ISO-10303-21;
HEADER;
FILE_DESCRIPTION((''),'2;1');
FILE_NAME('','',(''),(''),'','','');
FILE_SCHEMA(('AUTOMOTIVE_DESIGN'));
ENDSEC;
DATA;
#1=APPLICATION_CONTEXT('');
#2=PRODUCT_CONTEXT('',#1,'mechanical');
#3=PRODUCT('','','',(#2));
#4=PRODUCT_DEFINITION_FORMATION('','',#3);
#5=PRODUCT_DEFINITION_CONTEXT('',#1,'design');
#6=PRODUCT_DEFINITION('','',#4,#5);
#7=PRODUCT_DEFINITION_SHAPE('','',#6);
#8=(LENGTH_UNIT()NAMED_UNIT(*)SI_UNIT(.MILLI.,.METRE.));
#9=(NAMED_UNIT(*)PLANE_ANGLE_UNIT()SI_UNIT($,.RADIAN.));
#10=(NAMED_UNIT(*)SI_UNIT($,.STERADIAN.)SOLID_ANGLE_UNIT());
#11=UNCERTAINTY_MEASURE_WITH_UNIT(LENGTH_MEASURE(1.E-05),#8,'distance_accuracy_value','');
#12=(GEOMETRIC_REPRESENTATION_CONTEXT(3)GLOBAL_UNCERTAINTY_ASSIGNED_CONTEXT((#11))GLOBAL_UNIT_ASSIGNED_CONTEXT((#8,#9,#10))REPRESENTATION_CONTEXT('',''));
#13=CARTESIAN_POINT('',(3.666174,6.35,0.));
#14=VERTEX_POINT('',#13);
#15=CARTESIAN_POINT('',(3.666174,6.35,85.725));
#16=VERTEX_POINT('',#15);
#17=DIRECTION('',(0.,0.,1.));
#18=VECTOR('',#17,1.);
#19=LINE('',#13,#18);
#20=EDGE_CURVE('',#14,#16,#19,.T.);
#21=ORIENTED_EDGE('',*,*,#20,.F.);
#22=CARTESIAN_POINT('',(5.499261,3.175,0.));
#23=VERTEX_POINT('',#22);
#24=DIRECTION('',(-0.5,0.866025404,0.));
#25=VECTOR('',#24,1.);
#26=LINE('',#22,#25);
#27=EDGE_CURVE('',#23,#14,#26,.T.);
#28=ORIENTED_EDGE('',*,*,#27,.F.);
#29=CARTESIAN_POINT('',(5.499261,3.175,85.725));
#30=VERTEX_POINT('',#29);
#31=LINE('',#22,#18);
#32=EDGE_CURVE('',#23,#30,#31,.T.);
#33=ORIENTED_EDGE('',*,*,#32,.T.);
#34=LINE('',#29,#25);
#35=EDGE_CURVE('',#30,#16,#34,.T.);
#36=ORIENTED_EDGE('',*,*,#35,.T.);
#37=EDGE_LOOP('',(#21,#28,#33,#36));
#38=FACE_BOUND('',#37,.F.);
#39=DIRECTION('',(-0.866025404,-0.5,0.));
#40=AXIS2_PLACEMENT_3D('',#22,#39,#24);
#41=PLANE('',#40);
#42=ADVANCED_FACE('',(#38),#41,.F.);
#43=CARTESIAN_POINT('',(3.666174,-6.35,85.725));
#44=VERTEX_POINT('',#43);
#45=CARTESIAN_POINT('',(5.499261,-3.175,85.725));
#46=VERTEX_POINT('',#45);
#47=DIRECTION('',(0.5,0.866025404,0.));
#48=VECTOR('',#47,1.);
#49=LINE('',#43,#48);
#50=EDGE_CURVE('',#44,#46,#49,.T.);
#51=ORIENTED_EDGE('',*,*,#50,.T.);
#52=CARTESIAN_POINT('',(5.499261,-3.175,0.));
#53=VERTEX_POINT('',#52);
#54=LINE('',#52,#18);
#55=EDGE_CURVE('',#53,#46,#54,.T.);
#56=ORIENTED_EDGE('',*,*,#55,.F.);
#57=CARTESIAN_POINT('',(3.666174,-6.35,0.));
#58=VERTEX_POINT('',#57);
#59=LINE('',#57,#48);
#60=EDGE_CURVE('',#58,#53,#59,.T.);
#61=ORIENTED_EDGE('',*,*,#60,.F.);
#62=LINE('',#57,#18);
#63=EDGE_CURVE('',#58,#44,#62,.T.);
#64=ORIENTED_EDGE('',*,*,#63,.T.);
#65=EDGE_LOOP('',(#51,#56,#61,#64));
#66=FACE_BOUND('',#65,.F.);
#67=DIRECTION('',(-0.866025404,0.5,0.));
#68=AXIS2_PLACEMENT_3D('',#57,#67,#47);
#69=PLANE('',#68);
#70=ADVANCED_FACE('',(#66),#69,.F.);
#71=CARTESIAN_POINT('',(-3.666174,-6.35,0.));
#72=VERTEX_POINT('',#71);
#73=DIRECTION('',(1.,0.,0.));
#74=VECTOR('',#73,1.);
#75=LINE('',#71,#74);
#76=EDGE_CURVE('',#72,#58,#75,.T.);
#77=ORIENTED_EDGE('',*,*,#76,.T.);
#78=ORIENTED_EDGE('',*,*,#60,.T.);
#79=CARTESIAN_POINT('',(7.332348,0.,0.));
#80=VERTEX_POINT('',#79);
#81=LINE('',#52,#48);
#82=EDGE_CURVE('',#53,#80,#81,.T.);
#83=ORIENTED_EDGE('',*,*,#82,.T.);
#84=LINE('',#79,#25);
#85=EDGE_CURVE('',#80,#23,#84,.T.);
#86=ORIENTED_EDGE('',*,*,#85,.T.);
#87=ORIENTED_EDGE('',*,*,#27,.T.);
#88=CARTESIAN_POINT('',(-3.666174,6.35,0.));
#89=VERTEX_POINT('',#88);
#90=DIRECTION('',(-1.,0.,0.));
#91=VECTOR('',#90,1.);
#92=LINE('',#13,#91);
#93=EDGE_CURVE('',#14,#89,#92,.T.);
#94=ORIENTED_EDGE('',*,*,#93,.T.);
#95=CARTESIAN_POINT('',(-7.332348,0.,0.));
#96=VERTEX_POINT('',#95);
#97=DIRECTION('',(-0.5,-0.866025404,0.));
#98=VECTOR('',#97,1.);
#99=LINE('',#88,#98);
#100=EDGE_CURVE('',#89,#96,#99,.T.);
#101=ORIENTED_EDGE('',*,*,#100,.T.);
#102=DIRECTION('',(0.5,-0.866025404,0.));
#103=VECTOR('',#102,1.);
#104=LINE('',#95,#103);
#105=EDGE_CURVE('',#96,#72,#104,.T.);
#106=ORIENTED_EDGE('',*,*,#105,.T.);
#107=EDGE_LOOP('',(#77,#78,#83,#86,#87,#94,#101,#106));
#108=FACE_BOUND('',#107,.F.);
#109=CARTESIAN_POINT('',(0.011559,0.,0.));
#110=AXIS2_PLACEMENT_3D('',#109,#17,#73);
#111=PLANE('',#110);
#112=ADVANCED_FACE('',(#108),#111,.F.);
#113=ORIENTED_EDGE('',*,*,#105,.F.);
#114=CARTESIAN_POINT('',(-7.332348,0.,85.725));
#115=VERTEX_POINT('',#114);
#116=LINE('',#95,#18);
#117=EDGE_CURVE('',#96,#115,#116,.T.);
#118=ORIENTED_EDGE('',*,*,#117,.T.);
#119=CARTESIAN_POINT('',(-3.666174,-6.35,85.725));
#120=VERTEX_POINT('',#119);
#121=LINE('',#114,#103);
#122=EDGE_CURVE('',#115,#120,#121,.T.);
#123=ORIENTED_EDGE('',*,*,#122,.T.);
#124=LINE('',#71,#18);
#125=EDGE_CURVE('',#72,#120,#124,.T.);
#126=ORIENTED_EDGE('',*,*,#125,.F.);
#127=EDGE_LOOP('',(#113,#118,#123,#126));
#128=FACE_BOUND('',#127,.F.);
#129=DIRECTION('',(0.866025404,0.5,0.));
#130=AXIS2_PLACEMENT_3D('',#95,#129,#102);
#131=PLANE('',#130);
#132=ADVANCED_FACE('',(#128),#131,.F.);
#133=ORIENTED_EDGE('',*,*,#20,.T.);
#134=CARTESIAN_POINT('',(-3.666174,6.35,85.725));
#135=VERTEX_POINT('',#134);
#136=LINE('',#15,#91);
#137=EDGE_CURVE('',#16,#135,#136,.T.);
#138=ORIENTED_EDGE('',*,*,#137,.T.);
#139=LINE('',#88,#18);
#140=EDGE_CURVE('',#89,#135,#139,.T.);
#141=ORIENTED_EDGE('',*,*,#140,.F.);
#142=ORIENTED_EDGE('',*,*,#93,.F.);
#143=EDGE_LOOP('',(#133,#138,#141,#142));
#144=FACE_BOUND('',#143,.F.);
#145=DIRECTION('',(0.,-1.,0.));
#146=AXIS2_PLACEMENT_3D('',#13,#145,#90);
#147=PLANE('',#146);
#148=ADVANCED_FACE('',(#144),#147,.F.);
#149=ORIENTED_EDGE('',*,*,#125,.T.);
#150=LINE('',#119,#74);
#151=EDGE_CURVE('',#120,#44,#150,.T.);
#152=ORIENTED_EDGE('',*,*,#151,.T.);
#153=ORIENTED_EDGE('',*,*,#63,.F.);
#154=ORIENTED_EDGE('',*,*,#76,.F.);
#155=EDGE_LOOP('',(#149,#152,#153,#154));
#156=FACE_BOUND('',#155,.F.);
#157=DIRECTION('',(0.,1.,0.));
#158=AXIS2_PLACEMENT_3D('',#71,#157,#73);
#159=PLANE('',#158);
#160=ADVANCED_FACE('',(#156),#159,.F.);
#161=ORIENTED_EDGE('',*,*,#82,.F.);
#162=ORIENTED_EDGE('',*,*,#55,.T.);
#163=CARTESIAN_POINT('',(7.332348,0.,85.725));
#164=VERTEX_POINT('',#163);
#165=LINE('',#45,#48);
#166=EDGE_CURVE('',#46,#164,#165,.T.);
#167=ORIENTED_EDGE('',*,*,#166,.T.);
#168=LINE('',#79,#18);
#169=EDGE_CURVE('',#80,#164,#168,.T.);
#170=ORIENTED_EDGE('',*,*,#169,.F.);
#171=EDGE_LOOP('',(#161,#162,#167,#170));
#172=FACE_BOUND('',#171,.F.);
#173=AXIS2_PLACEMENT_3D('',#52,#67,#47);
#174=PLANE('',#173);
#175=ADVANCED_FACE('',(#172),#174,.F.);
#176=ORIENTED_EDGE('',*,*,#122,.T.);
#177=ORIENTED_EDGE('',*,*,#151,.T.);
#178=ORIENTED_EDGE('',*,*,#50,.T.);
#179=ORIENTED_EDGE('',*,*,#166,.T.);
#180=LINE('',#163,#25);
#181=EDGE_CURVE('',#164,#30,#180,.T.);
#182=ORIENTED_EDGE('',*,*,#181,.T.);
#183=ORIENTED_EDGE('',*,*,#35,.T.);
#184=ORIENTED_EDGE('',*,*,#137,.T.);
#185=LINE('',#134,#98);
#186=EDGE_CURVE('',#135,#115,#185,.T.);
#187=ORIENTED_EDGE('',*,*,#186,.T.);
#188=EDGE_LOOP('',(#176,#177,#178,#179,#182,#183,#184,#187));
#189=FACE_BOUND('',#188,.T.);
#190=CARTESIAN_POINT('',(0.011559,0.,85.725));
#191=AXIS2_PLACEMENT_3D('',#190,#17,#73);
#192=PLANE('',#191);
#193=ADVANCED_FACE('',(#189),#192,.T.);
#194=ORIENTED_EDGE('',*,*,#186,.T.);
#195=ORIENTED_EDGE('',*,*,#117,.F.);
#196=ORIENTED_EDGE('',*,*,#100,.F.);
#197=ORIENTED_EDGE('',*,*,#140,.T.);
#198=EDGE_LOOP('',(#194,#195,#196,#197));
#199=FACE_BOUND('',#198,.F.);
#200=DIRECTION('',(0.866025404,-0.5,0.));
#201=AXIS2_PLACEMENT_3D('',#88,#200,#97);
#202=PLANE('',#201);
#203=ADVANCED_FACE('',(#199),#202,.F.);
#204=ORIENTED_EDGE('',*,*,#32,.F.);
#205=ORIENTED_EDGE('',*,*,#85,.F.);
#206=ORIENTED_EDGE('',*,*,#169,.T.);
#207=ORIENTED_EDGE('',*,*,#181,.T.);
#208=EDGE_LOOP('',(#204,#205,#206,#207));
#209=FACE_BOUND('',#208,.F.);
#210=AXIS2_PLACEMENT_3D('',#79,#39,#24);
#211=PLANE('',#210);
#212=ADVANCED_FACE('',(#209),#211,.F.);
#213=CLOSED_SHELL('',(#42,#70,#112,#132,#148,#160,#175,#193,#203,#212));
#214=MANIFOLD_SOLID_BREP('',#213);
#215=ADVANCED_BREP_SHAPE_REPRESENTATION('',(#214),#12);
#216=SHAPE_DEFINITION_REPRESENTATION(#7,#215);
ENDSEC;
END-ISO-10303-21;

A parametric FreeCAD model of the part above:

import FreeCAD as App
import Part
import Sketcher
from FreeCAD import Vector
Q = App.Units.Quantity

doc = App.newDocument("Part")
params = doc.addObject("Spreadsheet::Sheet", "Params")
for row, (alias, value) in enumerate([
    ("pad1_length", "3.375 in"),
], start=1):
    params.set(f"A{row}", alias)
    params.set(f"B{row}", "=" + value)
    params.setAlias(f"B{row}", alias)

body = doc.addObject("PartDesign::Body", "Body")

sketch1 = body.newObject("Sketcher::SketchObject", "Sketch")
sketch1.AttachmentSupport = (doc.getObject("XY_Plane"), [""])
sketch1.MapMode = "FlatFace"
sketch1.addGeometry([
    Part.LineSegment(Vector(-3.666174, -6.35, 0), Vector(3.666174, -6.35, 0)),
    Part.LineSegment(Vector(3.666174, -6.35, 0), Vector(5.499261, -3.175, 0)),
    Part.LineSegment(Vector(5.499261, -3.175, 0), Vector(7.332348, 0, 0)),
    Part.LineSegment(Vector(7.332348, 0, 0), Vector(5.499261, 3.175, 0)),
    Part.LineSegment(Vector(5.499261, 3.175, 0), Vector(3.666174, 6.35, 0)),
    Part.LineSegment(Vector(3.666174, 6.35, 0), Vector(-3.666174, 6.35, 0)),
    Part.LineSegment(Vector(-3.666174, 6.35, 0), Vector(-7.332348, 0, 0)),
    Part.LineSegment(Vector(-7.332348, 0, 0), Vector(-3.666174, -6.35, 0)),
], False)
sketch1.addConstraint([
    Sketcher.Constraint("Coincident", 0, 2, 1, 1),
    Sketcher.Constraint("Coincident", 1, 2, 2, 1),
    Sketcher.Constraint("Coincident", 2, 2, 3, 1),
    Sketcher.Constraint("Coincident", 3, 2, 4, 1),
    Sketcher.Constraint("Coincident", 4, 2, 5, 1),
    Sketcher.Constraint("Coincident", 5, 2, 6, 1),
    Sketcher.Constraint("Coincident", 6, 2, 7, 1),
    Sketcher.Constraint("Coincident", 7, 2, 0, 1),
    Sketcher.Constraint("Horizontal", 0),
    Sketcher.Constraint("Horizontal", 5),
    Sketcher.Constraint("Symmetric", 0, 2, 5, 2, -1, 1),
    Sketcher.Constraint("Symmetric", 2, 2, 6, 2, -1, 1),
    Sketcher.Constraint("Symmetric", 1, 2, 3, 2, -1),
    Sketcher.Constraint("PointOnObject", 2, 2, -1),
    Sketcher.Constraint("Parallel", 1, 2),
    Sketcher.Constraint("Parallel", 3, 4),
    Sketcher.Constraint("Parallel", 4, 7),
    Sketcher.Constraint("Equal", 1, 2),
    Sketcher.Constraint("Angle", 1, Q("60 deg")),
    Sketcher.Constraint("DistanceY", 0, 2, 4, 2, Q("0.5 in")),
    Sketcher.Constraint("DistanceX", 0, 1, 0, 2, 7.332348),
])
pad1 = body.newObject("PartDesign::Pad", "Pad")
pad1.Profile = sketch1
pad1.setExpression("Length", "Params.pad1_length")

doc.recompute()
